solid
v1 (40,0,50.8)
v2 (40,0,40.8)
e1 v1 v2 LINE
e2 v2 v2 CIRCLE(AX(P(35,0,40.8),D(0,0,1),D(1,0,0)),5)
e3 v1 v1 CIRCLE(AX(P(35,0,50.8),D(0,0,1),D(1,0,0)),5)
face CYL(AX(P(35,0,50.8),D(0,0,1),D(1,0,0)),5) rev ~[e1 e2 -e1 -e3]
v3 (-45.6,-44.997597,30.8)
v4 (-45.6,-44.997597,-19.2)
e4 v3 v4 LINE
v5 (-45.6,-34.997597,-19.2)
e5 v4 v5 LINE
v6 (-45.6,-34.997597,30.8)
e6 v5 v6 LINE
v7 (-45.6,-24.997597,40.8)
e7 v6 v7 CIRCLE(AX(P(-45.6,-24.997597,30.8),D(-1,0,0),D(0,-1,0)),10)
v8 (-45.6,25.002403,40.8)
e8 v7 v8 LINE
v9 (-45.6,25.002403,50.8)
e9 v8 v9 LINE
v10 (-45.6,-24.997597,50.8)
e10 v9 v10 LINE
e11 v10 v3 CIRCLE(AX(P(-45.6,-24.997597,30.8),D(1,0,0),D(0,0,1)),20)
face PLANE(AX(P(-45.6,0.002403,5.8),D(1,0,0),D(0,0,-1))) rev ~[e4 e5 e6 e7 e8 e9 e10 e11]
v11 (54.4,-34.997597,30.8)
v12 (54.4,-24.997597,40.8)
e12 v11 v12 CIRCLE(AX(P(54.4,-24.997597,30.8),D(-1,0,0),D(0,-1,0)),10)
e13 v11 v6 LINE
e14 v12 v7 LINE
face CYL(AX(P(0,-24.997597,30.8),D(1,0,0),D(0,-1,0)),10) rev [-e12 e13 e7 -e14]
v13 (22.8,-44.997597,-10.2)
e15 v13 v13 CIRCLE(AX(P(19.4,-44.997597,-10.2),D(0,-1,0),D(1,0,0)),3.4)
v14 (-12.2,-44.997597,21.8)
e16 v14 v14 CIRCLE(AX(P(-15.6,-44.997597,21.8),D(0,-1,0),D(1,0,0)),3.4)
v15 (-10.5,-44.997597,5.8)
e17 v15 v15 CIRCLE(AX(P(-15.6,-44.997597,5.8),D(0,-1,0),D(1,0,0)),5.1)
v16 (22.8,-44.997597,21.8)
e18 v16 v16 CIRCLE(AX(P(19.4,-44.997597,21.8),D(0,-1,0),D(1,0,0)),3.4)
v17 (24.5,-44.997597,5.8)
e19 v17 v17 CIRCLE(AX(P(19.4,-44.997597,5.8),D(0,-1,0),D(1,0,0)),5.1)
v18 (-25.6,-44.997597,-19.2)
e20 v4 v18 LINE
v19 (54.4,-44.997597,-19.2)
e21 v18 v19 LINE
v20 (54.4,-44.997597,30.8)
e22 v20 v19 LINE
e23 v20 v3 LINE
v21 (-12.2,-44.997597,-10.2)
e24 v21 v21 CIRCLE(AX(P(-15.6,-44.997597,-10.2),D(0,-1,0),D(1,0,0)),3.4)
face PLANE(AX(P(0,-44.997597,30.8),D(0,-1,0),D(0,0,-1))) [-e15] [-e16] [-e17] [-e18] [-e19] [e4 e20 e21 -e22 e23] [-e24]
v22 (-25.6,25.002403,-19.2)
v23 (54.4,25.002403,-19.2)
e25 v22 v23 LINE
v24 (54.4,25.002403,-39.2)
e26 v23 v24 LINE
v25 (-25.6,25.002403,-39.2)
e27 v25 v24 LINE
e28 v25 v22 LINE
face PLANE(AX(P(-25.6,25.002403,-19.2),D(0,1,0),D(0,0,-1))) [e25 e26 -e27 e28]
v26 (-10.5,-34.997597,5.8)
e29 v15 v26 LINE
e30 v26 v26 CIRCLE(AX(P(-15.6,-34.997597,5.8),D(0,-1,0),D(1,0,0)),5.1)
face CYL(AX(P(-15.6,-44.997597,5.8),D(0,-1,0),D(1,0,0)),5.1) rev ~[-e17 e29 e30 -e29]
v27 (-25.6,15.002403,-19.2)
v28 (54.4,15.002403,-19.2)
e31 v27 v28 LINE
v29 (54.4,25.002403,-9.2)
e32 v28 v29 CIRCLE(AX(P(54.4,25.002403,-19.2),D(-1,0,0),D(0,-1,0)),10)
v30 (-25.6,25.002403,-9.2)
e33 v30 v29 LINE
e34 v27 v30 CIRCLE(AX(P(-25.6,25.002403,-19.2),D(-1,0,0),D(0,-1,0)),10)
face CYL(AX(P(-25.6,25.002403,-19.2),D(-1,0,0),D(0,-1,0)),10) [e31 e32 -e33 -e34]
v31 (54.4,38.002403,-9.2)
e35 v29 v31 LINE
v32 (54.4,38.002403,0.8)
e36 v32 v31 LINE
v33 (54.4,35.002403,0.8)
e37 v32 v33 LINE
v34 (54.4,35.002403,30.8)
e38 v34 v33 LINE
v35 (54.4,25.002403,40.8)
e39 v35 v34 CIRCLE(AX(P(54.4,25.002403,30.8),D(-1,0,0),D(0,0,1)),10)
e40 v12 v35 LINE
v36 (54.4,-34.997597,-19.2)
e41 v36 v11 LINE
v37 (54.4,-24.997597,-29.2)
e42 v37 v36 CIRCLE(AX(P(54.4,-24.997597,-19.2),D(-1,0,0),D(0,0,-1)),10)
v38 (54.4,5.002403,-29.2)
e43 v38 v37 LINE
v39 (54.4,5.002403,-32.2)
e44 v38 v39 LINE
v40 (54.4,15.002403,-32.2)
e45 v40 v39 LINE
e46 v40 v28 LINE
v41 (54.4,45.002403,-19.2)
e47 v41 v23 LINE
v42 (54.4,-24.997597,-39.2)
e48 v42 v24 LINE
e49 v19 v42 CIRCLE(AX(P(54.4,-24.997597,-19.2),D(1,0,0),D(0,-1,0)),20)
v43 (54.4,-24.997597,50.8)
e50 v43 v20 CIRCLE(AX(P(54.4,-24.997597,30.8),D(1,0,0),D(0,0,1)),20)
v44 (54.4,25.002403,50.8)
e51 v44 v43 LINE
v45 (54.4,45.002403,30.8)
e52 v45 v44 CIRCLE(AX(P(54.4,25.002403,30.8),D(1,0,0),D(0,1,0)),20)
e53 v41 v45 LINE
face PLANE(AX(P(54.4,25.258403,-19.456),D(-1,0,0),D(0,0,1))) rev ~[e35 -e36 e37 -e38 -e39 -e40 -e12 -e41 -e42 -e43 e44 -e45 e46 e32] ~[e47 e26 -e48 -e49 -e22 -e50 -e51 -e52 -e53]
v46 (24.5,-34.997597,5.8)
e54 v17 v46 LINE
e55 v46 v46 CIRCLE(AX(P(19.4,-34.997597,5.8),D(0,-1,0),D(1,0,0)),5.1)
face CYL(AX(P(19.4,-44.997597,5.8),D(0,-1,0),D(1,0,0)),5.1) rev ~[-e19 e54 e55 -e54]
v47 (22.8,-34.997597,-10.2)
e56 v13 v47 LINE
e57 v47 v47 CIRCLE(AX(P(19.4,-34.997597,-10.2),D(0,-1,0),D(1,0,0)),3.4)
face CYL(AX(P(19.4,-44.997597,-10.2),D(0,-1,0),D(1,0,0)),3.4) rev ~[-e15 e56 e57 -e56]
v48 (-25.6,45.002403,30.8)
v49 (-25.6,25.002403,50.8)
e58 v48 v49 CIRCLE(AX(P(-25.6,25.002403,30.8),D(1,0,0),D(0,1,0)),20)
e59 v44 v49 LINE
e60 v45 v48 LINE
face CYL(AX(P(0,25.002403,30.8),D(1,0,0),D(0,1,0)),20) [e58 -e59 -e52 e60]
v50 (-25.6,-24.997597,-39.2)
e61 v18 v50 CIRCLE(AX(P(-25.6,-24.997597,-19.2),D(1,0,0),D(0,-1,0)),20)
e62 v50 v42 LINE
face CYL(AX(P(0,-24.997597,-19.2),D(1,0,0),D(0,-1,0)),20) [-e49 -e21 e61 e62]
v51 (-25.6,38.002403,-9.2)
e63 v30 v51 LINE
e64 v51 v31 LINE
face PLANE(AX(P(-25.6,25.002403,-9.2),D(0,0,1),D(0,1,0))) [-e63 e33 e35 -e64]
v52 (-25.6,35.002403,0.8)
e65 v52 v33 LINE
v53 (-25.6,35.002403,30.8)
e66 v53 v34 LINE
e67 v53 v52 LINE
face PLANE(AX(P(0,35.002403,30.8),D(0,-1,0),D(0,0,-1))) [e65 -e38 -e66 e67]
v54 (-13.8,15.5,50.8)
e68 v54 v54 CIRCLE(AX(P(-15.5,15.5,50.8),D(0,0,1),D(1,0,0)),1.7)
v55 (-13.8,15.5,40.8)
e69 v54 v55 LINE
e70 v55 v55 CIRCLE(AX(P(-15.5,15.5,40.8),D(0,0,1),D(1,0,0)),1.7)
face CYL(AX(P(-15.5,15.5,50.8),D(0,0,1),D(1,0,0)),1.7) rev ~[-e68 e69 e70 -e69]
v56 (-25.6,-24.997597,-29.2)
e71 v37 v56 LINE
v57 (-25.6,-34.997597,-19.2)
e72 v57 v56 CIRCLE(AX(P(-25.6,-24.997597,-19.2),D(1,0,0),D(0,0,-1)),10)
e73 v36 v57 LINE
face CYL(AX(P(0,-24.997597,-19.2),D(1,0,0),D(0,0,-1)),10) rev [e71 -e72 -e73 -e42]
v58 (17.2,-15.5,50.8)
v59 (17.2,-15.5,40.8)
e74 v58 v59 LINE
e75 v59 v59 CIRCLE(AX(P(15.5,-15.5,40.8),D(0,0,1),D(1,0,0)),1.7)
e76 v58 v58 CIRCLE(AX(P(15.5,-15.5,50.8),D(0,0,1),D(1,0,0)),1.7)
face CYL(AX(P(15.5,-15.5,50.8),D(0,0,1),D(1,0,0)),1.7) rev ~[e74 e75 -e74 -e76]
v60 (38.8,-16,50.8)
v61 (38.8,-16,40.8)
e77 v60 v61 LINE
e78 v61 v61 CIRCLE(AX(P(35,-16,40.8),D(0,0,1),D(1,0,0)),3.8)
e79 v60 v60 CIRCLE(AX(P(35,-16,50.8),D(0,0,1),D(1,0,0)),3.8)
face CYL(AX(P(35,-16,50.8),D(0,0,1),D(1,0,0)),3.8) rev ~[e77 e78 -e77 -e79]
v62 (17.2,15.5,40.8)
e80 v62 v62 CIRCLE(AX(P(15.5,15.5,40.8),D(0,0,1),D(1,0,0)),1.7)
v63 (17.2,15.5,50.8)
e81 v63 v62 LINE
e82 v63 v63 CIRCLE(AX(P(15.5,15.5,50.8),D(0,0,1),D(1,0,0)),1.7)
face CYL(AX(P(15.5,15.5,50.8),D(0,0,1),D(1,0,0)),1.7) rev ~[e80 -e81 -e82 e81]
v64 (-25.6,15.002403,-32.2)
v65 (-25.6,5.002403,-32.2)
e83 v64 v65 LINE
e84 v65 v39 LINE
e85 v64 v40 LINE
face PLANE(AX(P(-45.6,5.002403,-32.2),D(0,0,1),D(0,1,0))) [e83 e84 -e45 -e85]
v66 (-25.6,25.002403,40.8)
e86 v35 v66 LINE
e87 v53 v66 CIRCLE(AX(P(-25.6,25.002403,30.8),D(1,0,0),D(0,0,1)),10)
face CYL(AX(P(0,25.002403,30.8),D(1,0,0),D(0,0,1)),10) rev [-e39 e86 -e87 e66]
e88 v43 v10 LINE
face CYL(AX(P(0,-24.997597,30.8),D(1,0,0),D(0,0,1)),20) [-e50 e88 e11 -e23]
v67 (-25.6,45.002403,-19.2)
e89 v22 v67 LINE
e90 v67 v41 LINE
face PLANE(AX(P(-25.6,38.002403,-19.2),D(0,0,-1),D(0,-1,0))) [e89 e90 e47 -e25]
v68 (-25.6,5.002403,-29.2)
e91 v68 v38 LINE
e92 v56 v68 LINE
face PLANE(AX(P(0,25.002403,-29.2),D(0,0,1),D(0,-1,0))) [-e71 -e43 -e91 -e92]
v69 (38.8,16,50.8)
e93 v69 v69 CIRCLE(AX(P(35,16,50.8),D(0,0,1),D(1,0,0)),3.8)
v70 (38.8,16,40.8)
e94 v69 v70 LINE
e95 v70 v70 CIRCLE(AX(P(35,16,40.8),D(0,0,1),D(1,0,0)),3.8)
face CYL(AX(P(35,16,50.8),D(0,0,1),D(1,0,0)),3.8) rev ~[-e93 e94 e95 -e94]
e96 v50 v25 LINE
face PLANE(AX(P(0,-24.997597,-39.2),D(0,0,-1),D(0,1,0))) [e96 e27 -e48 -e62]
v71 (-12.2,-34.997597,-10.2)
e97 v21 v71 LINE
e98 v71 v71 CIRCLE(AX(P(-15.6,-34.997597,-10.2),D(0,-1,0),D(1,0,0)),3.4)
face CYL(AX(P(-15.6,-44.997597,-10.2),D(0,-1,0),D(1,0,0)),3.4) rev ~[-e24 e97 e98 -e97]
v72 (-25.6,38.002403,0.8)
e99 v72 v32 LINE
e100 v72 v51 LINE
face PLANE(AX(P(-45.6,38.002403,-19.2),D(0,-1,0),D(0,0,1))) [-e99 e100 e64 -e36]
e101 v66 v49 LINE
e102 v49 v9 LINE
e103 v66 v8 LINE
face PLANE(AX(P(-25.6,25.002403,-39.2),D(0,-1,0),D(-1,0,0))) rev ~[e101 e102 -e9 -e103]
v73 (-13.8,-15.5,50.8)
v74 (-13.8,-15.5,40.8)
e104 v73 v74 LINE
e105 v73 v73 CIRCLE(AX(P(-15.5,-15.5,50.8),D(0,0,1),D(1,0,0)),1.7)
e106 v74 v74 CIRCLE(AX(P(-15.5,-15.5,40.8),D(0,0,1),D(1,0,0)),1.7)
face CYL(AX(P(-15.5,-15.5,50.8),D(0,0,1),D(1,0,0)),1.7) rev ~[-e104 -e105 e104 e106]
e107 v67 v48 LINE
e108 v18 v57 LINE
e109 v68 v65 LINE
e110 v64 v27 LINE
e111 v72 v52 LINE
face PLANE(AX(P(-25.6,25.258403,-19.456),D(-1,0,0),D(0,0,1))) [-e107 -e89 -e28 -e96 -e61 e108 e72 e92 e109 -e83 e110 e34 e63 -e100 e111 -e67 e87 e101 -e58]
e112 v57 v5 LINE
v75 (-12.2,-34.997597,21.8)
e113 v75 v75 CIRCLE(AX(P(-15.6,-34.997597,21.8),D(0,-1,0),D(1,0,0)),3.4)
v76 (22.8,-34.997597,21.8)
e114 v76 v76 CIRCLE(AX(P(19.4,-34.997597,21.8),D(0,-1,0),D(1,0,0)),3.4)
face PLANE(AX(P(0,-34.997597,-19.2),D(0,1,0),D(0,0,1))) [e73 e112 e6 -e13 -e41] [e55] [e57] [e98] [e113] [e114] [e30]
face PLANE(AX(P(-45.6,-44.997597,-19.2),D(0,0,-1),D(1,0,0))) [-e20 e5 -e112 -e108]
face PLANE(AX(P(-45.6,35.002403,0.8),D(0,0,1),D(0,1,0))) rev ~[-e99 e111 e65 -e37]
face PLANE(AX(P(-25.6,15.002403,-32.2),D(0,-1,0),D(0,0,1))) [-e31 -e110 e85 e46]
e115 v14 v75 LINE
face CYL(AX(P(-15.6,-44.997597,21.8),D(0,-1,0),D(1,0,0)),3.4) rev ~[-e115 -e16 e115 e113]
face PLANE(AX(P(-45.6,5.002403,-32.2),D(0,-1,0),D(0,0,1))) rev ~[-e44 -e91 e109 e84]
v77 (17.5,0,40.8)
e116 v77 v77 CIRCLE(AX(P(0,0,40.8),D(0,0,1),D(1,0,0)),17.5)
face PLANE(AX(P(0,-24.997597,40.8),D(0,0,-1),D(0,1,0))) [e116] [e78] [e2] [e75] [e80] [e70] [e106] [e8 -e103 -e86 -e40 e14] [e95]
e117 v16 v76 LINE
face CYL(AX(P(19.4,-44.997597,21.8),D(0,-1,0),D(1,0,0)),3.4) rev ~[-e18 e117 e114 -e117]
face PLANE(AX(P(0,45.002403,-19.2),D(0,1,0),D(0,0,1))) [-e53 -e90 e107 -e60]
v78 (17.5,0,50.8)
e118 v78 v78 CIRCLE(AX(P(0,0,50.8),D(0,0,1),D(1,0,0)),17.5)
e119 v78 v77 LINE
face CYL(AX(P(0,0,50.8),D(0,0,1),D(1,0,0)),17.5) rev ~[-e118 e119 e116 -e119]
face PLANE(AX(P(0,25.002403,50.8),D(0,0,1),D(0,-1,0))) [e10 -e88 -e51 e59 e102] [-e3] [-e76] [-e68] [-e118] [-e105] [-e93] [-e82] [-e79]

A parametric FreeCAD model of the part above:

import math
import FreeCAD as App
import Part
import Sketcher

V = App.Vector


def add_polygon(sketch, points):
    """Adds a closed chain of lines whose ends are joined by coincident constraints."""
    first, n = sketch.GeometryCount, len(points)
    for a, b in zip(points, points[1:] + points[:1]):
        sketch.addGeometry(Part.LineSegment(App.Vector(*a, 0), App.Vector(*b, 0)), False)
    for i in range(n):
        sketch.addConstraint(Sketcher.Constraint("Coincident", first + i, 2, first + (i + 1) % n, 1))

doc = App.newDocument("Part")
params = doc.addObject("Spreadsheet::Sheet", "Params")
for row, (alias, value) in enumerate([
    ("sketch1_radius", "20 mm"),
    ("sketch1_radius2", "10 mm"),
    ("sketch1_width", "50 mm"),
    ("pad1_length", "54.4 mm"),
    ("pad1_length2", "45.6 mm"),
    ("sketch2_diameter", "7.6 mm"),
    ("sketch3_diameter", "10 mm"),
    ("sketch4_diameter", "7.6 mm"),
    ("sketch5_diameter", "35 mm"),
    ("sketch6_diameter", "3.4 mm"),
    ("sketch7_diameter", "3.4 mm"),
    ("sketch8_diameter", "3.4 mm"),
    ("sketch9_diameter", "3.4 mm"),
    ("sketch10_diameter", "10.2 mm"),
    ("sketch11_diameter", "10.2 mm"),
    ("sketch12_diameter", "6.8 mm"),
    ("sketch13_diameter", "6.8 mm"),
    ("sketch14_diameter", "6.8 mm"),
    ("sketch15_diameter", "6.8 mm"),
    ("sketch16_width", "20 mm"),
    ("sketch17_width", "20 mm"),
    ("sketch18_width", "10 mm"),
    ("sketch18_width2", "3 mm"),
    ("sketch18_width3", "7 mm"),
    ("sketch19_radius", "10 mm"),
    ("sketch19_width", "13 mm"),
    ("pad2_length", "80 mm"),
], start=1):
    params.set(f"A{row}", alias)
    params.set(f"B{row}", "=" + value)
    params.setAlias(f"B{row}", alias)

body = doc.addObject("PartDesign::Body", "Body")

sketch1 = body.newObject("Sketcher::SketchObject", "Sketch")
sketch1.AttachmentSupport = (doc.getObject("YZ_Plane"), [""])
sketch1.MapMode = "FlatFace"
sketch1.addGeometry(Part.LineSegment(V(-45, 31, 0), V(-45, -19, 0)), False)
sketch1.addGeometry(Part.ArcOfCircle(Part.Circle(V(-25, -19, 0), V(0, 0, 1), 20), math.radians(180), math.radians(270)), False)
sketch1.addGeometry(Part.LineSegment(V(-25, -39, 0), V(25, -39, 0)), False)
sketch1.addGeometry(Part.ArcOfCircle(Part.Circle(V(25, -19, 0), V(0, 0, 1), 20), math.radians(-90), math.radians(0)), False)
sketch1.addGeometry(Part.LineSegment(V(45, -19, 0), V(45, 31, 0)), False)
sketch1.addGeometry(Part.ArcOfCircle(Part.Circle(V(25, 31, 0), V(0, 0, 1), 20), math.radians(0), math.radians(90)), False)
sketch1.addGeometry(Part.LineSegment(V(25, 51, 0), V(-25, 51, 0)), False)
sketch1.addGeometry(Part.ArcOfCircle(Part.Circle(V(-25, 31, 0), V(0, 0, 1), 20), math.radians(90), math.radians(180)), False)
sketch1.addGeometry(Part.ArcOfCircle(Part.Circle(V(25, 31, 0), V(0, 0, 1), 10), math.radians(0), math.radians(90)), False)
sketch1.addGeometry(Part.LineSegment(V(35, 31, 0), V(35, -19, 0)), False)
sketch1.addGeometry(Part.ArcOfCircle(Part.Circle(V(25, -19, 0), V(0, 0, 1), 10), math.radians(-90), math.radians(0)), False)
sketch1.addGeometry(Part.LineSegment(V(25, -29, 0), V(-25, -29, 0)), False)
sketch1.addGeometry(Part.ArcOfCircle(Part.Circle(V(-25, -19, 0), V(0, 0, 1), 10), math.radians(180), math.radians(270)), False)
sketch1.addGeometry(Part.LineSegment(V(-35, -19, 0), V(-35, 31, 0)), False)
sketch1.addGeometry(Part.ArcOfCircle(Part.Circle(V(-25, 31, 0), V(0, 0, 1), 10), math.radians(90), math.radians(180)), False)
sketch1.addGeometry(Part.LineSegment(V(-25, 41, 0), V(25, 41, 0)), False)
sketch1.addConstraint(Sketcher.Constraint("Tangent", 0, 2, 1, 1))
sketch1.addConstraint(Sketcher.Constraint("Tangent", 1, 2, 2, 1))
sketch1.addConstraint(Sketcher.Constraint("Tangent", 2, 2, 3, 1))
sketch1.addConstraint(Sketcher.Constraint("Tangent", 3, 2, 4, 1))
sketch1.addConstraint(Sketcher.Constraint("Tangent", 4, 2, 5, 1))
sketch1.addConstraint(Sketcher.Constraint("Tangent", 5, 2, 6, 1))
sketch1.addConstraint(Sketcher.Constraint("Tangent", 6, 2, 7, 1))
sketch1.addConstraint(Sketcher.Constraint("Tangent", 7, 2, 0, 1))
sketch1.addConstraint(Sketcher.Constraint("Tangent", 8, 1, 9, 1))
sketch1.addConstraint(Sketcher.Constraint("Tangent", 9, 2, 10, 2))
sketch1.addConstraint(Sketcher.Constraint("Tangent", 10, 1, 11, 1))
sketch1.addConstraint(Sketcher.Constraint("Tangent", 11, 2, 12, 2))
sketch1.addConstraint(Sketcher.Constraint("Tangent", 12, 1, 13, 1))
sketch1.addConstraint(Sketcher.Constraint("Tangent", 13, 2, 14, 2))
sketch1.addConstraint(Sketcher.Constraint("Tangent", 14, 1, 15, 1))
sketch1.addConstraint(Sketcher.Constraint("Tangent", 15, 2, 8, 2))
sketch1.addConstraint(Sketcher.Constraint("Vertical", 0))
sketch1.addConstraint(Sketcher.Constraint("Horizontal", 2))
sketch1.addConstraint(Sketcher.Constraint("Vertical", 4))
sketch1.addConstraint(Sketcher.Constraint("Horizontal", 6))
sketch1.addConstraint(Sketcher.Constraint("Vertical", 9))
sketch1.addConstraint(Sketcher.Constraint("Horizontal", 11))
sketch1.addConstraint(Sketcher.Constraint("Vertical", 13))
sketch1.addConstraint(Sketcher.Constraint("Horizontal", 15))
sketch1.addConstraint(Sketcher.Constraint("Coincident", 8, 3, 5, 3))
sketch1.addConstraint(Sketcher.Constraint("Coincident", 10, 3, 3, 3))
sketch1.addConstraint(Sketcher.Constraint("Coincident", 12, 3, 1, 3))
sketch1.addConstraint(Sketcher.Constraint("Equal", 1, 3))
sketch1.addConstraint(Sketcher.Constraint("Equal", 3, 5))
sketch1.addConstraint(Sketcher.Constraint("Equal", 5, 7))
sketch1.addConstraint(Sketcher.Constraint("Equal", 12, 14))
sketch1.addConstraint(Sketcher.Constraint("Equal", 15, 0))
sketch1.addConstraint(Sketcher.Constraint("Radius", 1, 20.0))
sketch1.addConstraint(Sketcher.Constraint("Radius", 8, 10.0))
sketch1.addConstraint(Sketcher.Constraint("DistanceX", 2, 1, 2, 2, 50.0))
sketch1.addConstraint(Sketcher.Constraint("DistanceY", 1, 3, -1, 1, 19.2))
sketch1.addConstraint(Sketcher.Constraint("DistanceX", 1, 3, -1, 1, 24.997597))
sketch1.setExpression("Constraints[32]", "Params.sketch1_radius")
sketch1.setExpression("Constraints[33]", "Params.sketch1_radius2")
sketch1.setExpression("Constraints[34]", "Params.sketch1_width")
pad1 = body.newObject("PartDesign::Pad", "Pad")
pad1.Profile = sketch1
pad1.Type = "TwoLengths"
pad1.setExpression("Length", "Params.pad1_length")
pad1.setExpression("Length2", "Params.pad1_length2")

sketch2 = body.newObject("Sketcher::SketchObject", "Sketch001")
sketch2.AttachmentSupport = (doc.getObject("XY_Plane"), [""])
sketch2.MapMode = "FlatFace"
sketch2.AttachmentOffset = App.Placement(V(0, 0, 50.8), App.Rotation())
sketch2.addGeometry(Part.Circle(V(35, -16, 0), V(0, 0, 1), 3.8), False)
sketch2.addConstraint(Sketcher.Constraint("Diameter", 0, 7.6))
sketch2.addConstraint(Sketcher.Constraint("DistanceX", -1, 1, 0, 3, 35.0))
sketch2.addConstraint(Sketcher.Constraint("DistanceY", 0, 3, -1, 1, 16.0))
sketch2.setExpression("Constraints[0]", "Params.sketch2_diameter")
pocket1 = body.newObject("PartDesign::Pocket", "Pocket")
pocket1.Profile = sketch2
pocket1.Type = "UpToFirst"

sketch3 = body.newObject("Sketcher::SketchObject", "Sketch002")
sketch3.AttachmentSupport = (doc.getObject("XY_Plane"), [""])
sketch3.MapMode = "FlatFace"
sketch3.AttachmentOffset = App.Placement(V(0, 0, 50.8), App.Rotation())
sketch3.addGeometry(Part.Circle(V(35, 0, 0), V(0, 0, 1), 5), False)
sketch3.addConstraint(Sketcher.Constraint("PointOnObject", 0, 3, -1))
sketch3.addConstraint(Sketcher.Constraint("Diameter", 0, 10.0))
sketch3.addConstraint(Sketcher.Constraint("DistanceX", -1, 1, 0, 3, 35.0))
sketch3.setExpression("Constraints[1]", "Params.sketch3_diameter")
pocket2 = body.newObject("PartDesign::Pocket", "Pocket001")
pocket2.Profile = sketch3
pocket2.Type = "UpToFirst"

sketch4 = body.newObject("Sketcher::SketchObject", "Sketch003")
sketch4.AttachmentSupport = (doc.getObject("XY_Plane"), [""])
sketch4.MapMode = "FlatFace"
sketch4.AttachmentOffset = App.Placement(V(0, 0, 50.8), App.Rotation())
sketch4.addGeometry(Part.Circle(V(35, 16, 0), V(0, 0, 1), 3.8), False)
sketch4.addConstraint(Sketcher.Constraint("Diameter", 0, 7.6))
sketch4.addConstraint(Sketcher.Constraint("DistanceX", -1, 1, 0, 3, 35.0))
sketch4.addConstraint(Sketcher.Constraint("DistanceY", -1, 1, 0, 3, 16.0))
sketch4.setExpression("Constraints[0]", "Params.sketch4_diameter")
pocket3 = body.newObject("PartDesign::Pocket", "Pocket002")
pocket3.Profile = sketch4
pocket3.Type = "UpToFirst"

sketch5 = body.newObject("Sketcher::SketchObject", "Sketch004")
sketch5.AttachmentSupport = (doc.getObject("XY_Plane"), [""])
sketch5.MapMode = "FlatFace"
sketch5.AttachmentOffset = App.Placement(V(0, 0, 50.8), App.Rotation())
sketch5.addGeometry(Part.Circle(V(0, 0, 0), V(0, 0, 1), 18), False)
sketch5.addConstraint(Sketcher.Constraint("Coincident", 0, 3, -1, 1))
sketch5.addConstraint(Sketcher.Constraint("Diameter", 0, 35.0))
sketch5.setExpression("Constraints[1]", "Params.sketch5_diameter")
pocket4 = body.newObject("PartDesign::Pocket", "Pocket003")
pocket4.Profile = sketch5
pocket4.Type = "UpToFirst"

sketch6 = body.newObject("Sketcher::SketchObject", "Sketch005")
sketch6.AttachmentSupport = (doc.getObject("XY_Plane"), [""])
sketch6.MapMode = "FlatFace"
sketch6.AttachmentOffset = App.Placement(V(0, 0, 50.8), App.Rotation())
sketch6.addGeometry(Part.Circle(V(15.5, 15.5, 0), V(0, 0, 1), 1.7), False)
sketch6.addConstraint(Sketcher.Constraint("Diameter", 0, 3.4))
sketch6.addConstraint(Sketcher.Constraint("DistanceX", -1, 1, 0, 3, 15.5))
sketch6.addConstraint(Sketcher.Constraint("DistanceY", -1, 1, 0, 3, 15.5))
sketch6.setExpression("Constraints[0]", "Params.sketch6_diameter")
pocket5 = body.newObject("PartDesign::Pocket", "Pocket004")
pocket5.Profile = sketch6
pocket5.Type = "UpToFirst"

sketch7 = body.newObject("Sketcher::SketchObject", "Sketch006")
sketch7.AttachmentSupport = (doc.getObject("XY_Plane"), [""])
sketch7.MapMode = "FlatFace"
sketch7.AttachmentOffset = App.Placement(V(0, 0, 50.8), App.Rotation())
sketch7.addGeometry(Part.Circle(V(15.5, -15.5, 0), V(0, 0, 1), 1.7), False)
sketch7.addConstraint(Sketcher.Constraint("Diameter", 0, 3.4))
sketch7.addConstraint(Sketcher.Constraint("DistanceX", -1, 1, 0, 3, 15.5))
sketch7.addConstraint(Sketcher.Constraint("DistanceY", 0, 3, -1, 1, 15.5))
sketch7.setExpression("Constraints[0]", "Params.sketch7_diameter")
pocket6 = body.newObject("PartDesign::Pocket", "Pocket005")
pocket6.Profile = sketch7
pocket6.Type = "UpToFirst"

sketch8 = body.newObject("Sketcher::SketchObject", "Sketch007")
sketch8.AttachmentSupport = (doc.getObject("XY_Plane"), [""])
sketch8.MapMode = "FlatFace"
sketch8.AttachmentOffset = App.Placement(V(0, 0, 50.8), App.Rotation())
sketch8.addGeometry(Part.Circle(V(-15.5, 15.5, 0), V(0, 0, 1), 1.7), False)
sketch8.addConstraint(Sketcher.Constraint("Diameter", 0, 3.4))
sketch8.addConstraint(Sketcher.Constraint("DistanceX", 0, 3, -1, 1, 15.5))
sketch8.addConstraint(Sketcher.Constraint("DistanceY", -1, 1, 0, 3, 15.5))
sketch8.setExpression("Constraints[0]", "Params.sketch8_diameter")
pocket7 = body.newObject("PartDesign::Pocket", "Pocket006")
pocket7.Profile = sketch8
pocket7.Type = "UpToFirst"

sketch9 = body.newObject("Sketcher::SketchObject", "Sketch008")
sketch9.AttachmentSupport = (doc.getObject("XY_Plane"), [""])
sketch9.MapMode = "FlatFace"
sketch9.AttachmentOffset = App.Placement(V(0, 0, 50.8), App.Rotation())
sketch9.addGeometry(Part.Circle(V(-15.5, -15.5, 0), V(0, 0, 1), 1.7), False)
sketch9.addConstraint(Sketcher.Constraint("Diameter", 0, 3.4))
sketch9.addConstraint(Sketcher.Constraint("DistanceX", 0, 3, -1, 1, 15.5))
sketch9.addConstraint(Sketcher.Constraint("DistanceY", 0, 3, -1, 1, 15.5))
sketch9.setExpression("Constraints[0]", "Params.sketch9_diameter")
pocket8 = body.newObject("PartDesign::Pocket", "Pocket007")
pocket8.Profile = sketch9
pocket8.Type = "UpToFirst"

sketch10 = body.newObject("Sketcher::SketchObject", "Sketch009")
sketch10.AttachmentSupport = (doc.getObject("XZ_Plane"), [""])
sketch10.MapMode = "FlatFace"
sketch10.AttachmentOffset = App.Placement(V(0, 0, 44.997597), App.Rotation())
sketch10.addGeometry(Part.Circle(V(-16, 6, 0), V(0, 0, 1), 5), False)
sketch10.addConstraint(Sketcher.Constraint("Diameter", 0, 10.2))
sketch10.addConstraint(Sketcher.Constraint("DistanceX", 0, 3, -1, 1, 15.6))
sketch10.addConstraint(Sketcher.Constraint("DistanceY", -1, 1, 0, 3, 5.8))
sketch10.setExpression("Constraints[0]", "Params.sketch10_diameter")
pocket9 = body.newObject("PartDesign::Pocket", "Pocket008")
pocket9.Profile = sketch10
pocket9.Type = "UpToFirst"

sketch11 = body.newObject("Sketcher::SketchObject", "Sketch010")
sketch11.AttachmentSupport = (doc.getObject("XZ_Plane"), [""])
sketch11.MapMode = "FlatFace"
sketch11.AttachmentOffset = App.Placement(V(0, 0, 44.997597), App.Rotation())
sketch11.addGeometry(Part.Circle(V(19, 6, 0), V(0, 0, 1), 5), False)
sketch11.addConstraint(Sketcher.Constraint("Diameter", 0, 10.2))
sketch11.addConstraint(Sketcher.Constraint("DistanceX", -1, 1, 0, 3, 19.4))
sketch11.addConstraint(Sketcher.Constraint("DistanceY", -1, 1, 0, 3, 5.8))
sketch11.setExpression("Constraints[0]", "Params.sketch11_diameter")
pocket10 = body.newObject("PartDesign::Pocket", "Pocket009")
pocket10.Profile = sketch11
pocket10.Type = "UpToFirst"

sketch12 = body.newObject("Sketcher::SketchObject", "Sketch011")
sketch12.AttachmentSupport = (doc.getObject("XZ_Plane"), [""])
sketch12.MapMode = "FlatFace"
sketch12.AttachmentOffset = App.Placement(V(0, 0, 44.997597), App.Rotation())
sketch12.addGeometry(Part.Circle(V(-15.6, 21.8, 0), V(0, 0, 1), 3.4), False)
sketch12.addConstraint(Sketcher.Constraint("Diameter", 0, 6.8))
sketch12.addConstraint(Sketcher.Constraint("DistanceX", 0, 3, -1, 1, 15.6))
sketch12.addConstraint(Sketcher.Constraint("DistanceY", -1, 1, 0, 3, 21.8))
sketch12.setExpression("Constraints[0]", "Params.sketch12_diameter")
pocket11 = body.newObject("PartDesign::Pocket", "Pocket010")
pocket11.Profile = sketch12
pocket11.Type = "UpToFirst"

sketch13 = body.newObject("Sketcher::SketchObject", "Sketch012")
sketch13.AttachmentSupport = (doc.getObject("XZ_Plane"), [""])
sketch13.MapMode = "FlatFace"
sketch13.AttachmentOffset = App.Placement(V(0, 0, 44.997597), App.Rotation())
sketch13.addGeometry(Part.Circle(V(-15.6, -10.2, 0), V(0, 0, 1), 3.4), False)
sketch13.addConstraint(Sketcher.Constraint("Diameter", 0, 6.8))
sketch13.addConstraint(Sketcher.Constraint("DistanceX", 0, 3, -1, 1, 15.6))
sketch13.addConstraint(Sketcher.Constraint("DistanceY", 0, 3, -1, 1, 10.2))
sketch13.setExpression("Constraints[0]", "Params.sketch13_diameter")
pocket12 = body.newObject("PartDesign::Pocket", "Pocket011")
pocket12.Profile = sketch13
pocket12.Type = "UpToFirst"

sketch14 = body.newObject("Sketcher::SketchObject", "Sketch013")
sketch14.AttachmentSupport = (doc.getObject("XZ_Plane"), [""])
sketch14.MapMode = "FlatFace"
sketch14.AttachmentOffset = App.Placement(V(0, 0, 44.997597), App.Rotation())
sketch14.addGeometry(Part.Circle(V(19.4, 21.8, 0), V(0, 0, 1), 3.4), False)
sketch14.addConstraint(Sketcher.Constraint("Diameter", 0, 6.8))
sketch14.addConstraint(Sketcher.Constraint("DistanceX", -1, 1, 0, 3, 19.4))
sketch14.addConstraint(Sketcher.Constraint("DistanceY", -1, 1, 0, 3, 21.8))
sketch14.setExpression("Constraints[0]", "Params.sketch14_diameter")
pocket13 = body.newObject("PartDesign::Pocket", "Pocket012")
pocket13.Profile = sketch14
pocket13.Type = "UpToFirst"

sketch15 = body.newObject("Sketcher::SketchObject", "Sketch014")
sketch15.AttachmentSupport = (doc.getObject("XZ_Plane"), [""])
sketch15.MapMode = "FlatFace"
sketch15.AttachmentOffset = App.Placement(V(0, 0, 44.997597), App.Rotation())
sketch15.addGeometry(Part.Circle(V(19.4, -10.2, 0), V(0, 0, 1), 3.4), False)
sketch15.addConstraint(Sketcher.Constraint("Diameter", 0, 6.8))
sketch15.addConstraint(Sketcher.Constraint("DistanceX", -1, 1, 0, 3, 19.4))
sketch15.addConstraint(Sketcher.Constraint("DistanceY", 0, 3, -1, 1, 10.2))
sketch15.setExpression("Constraints[0]", "Params.sketch15_diameter")
pocket14 = body.newObject("PartDesign::Pocket", "Pocket013")
pocket14.Profile = sketch15
pocket14.Type = "UpToFirst"

sketch16 = body.newObject("Sketcher::SketchObject", "Sketch015")
sketch16.AttachmentSupport = (doc.getObject("XY_Plane"), [""])
sketch16.MapMode = "FlatFace"
sketch16.AttachmentOffset = App.Placement(V(0, 0, -39.2), App.Rotation())
add_polygon(sketch16, [(-26, 45), (-26, 25), (-46, 25), (-46, 45)])
sketch16.addConstraint(Sketcher.Constraint("Vertical", 0))
sketch16.addConstraint(Sketcher.Constraint("Horizontal", 1))
sketch16.addConstraint(Sketcher.Constraint("Vertical", 2))
sketch16.addConstraint(Sketcher.Constraint("Horizontal", 3))
sketch16.addConstraint(Sketcher.Constraint("Equal", 3, 0))
sketch16.addConstraint(Sketcher.Constraint("DistanceX", 1, 2, 1, 1, 20.0))
sketch16.addConstraint(Sketcher.Constraint("DistanceX", 0, 2, -1, 1, 25.6))
sketch16.addConstraint(Sketcher.Constraint("DistanceY", -1, 1, 0, 2, 25.002403))
sketch16.setExpression("Constraints[9]", "Params.sketch16_width")
pocket15 = body.newObject("PartDesign::Pocket", "Pocket014")
pocket15.Profile = sketch16
pocket15.Type = "ThroughAll"
pocket15.Reversed = True

sketch17 = body.newObject("Sketcher::SketchObject", "Sketch016")
sketch17.AttachmentSupport = (doc.getObject("XZ_Plane"), [""])
sketch17.MapMode = "FlatFace"
sketch17.AttachmentOffset = App.Placement(V(0, 0, 44.997597), App.Rotation())
add_polygon(sketch17, [(-46, -19), (-46, -39), (-26, -39), (-26, -19)])
sketch17.addConstraint(Sketcher.Constraint("Vertical", 0))
sketch17.addConstraint(Sketcher.Constraint("Horizontal", 1))
sketch17.addConstraint(Sketcher.Constraint("Vertical", 2))
sketch17.addConstraint(Sketcher.Constraint("Horizontal", 3))
sketch17.addConstraint(Sketcher.Constraint("Equal", 3, 0))
sketch17.addConstraint(Sketcher.Constraint("DistanceX", 1, 1, 1, 2, 20.0))
sketch17.addConstraint(Sketcher.Constraint("DistanceX", 0, 2, -1, 1, 45.6))
sketch17.addConstraint(Sketcher.Constraint("DistanceY", 0, 2, -1, 1, 39.2))
sketch17.setExpression("Constraints[9]", "Params.sketch17_width")
pocket16 = body.newObject("PartDesign::Pocket", "Pocket015")
pocket16.Profile = sketch17
pocket16.Type = "ThroughAll"

sketch18 = body.newObject("Sketcher::SketchObject", "Sketch017")
sketch18.AttachmentSupport = (doc.getObject("YZ_Plane"), [""])
sketch18.MapMode = "FlatFace"
sketch18.AttachmentOffset = App.Placement(V(0, 0, -45.6), App.Rotation())
add_polygon(sketch18, [(25, -19.2), (35, -19.2), (35, 0.8), (38, 0.8), (38, -19.2), (45, -19.2), (45, -39.2), (25, -39.2), (25, -32.2), (5, -32.2), (5, -29.2), (25, -29.2)])
sketch18.addConstraint(Sketcher.Constraint("Horizontal", 0))
sketch18.addConstraint(Sketcher.Constraint("Vertical", 1))
sketch18.addConstraint(Sketcher.Constraint("Horizontal", 2))
sketch18.addConstraint(Sketcher.Constraint("Vertical", 3))
sketch18.addConstraint(Sketcher.Constraint("Horizontal", 4))
sketch18.addConstraint(Sketcher.Constraint("Vertical", 5))
sketch18.addConstraint(Sketcher.Constraint("Horizontal", 6))
sketch18.addConstraint(Sketcher.Constraint("Vertical", 7))
sketch18.addConstraint(Sketcher.Constraint("Horizontal", 8))
sketch18.addConstraint(Sketcher.Constraint("Vertical", 9))
sketch18.addConstraint(Sketcher.Constraint("Horizontal", 10))
sketch18.addConstraint(Sketcher.Constraint("Vertical", 11))
sketch18.addConstraint(Sketcher.Constraint("Horizontal", 0, 2, 3, 2))
sketch18.addConstraint(Sketcher.Constraint("Vertical", 7, 2, 10, 2))
sketch18.addConstraint(Sketcher.Constraint("Equal", 6, 8))
sketch18.addConstraint(Sketcher.Constraint("Equal", 10, 1))
sketch18.addConstraint(Sketcher.Constraint("Equal", 3, 5))
sketch18.addConstraint(Sketcher.Constraint("Equal", 4, 7))
sketch18.addConstraint(Sketcher.Constraint("Equal", 2, 9))
sketch18.addConstraint(Sketcher.Constraint("DistanceX", 0, 1, 0, 2, 10.0))
sketch18.addConstraint(Sketcher.Constraint("DistanceX", 2, 1, 2, 2, 3.0))
sketch18.addConstraint(Sketcher.Constraint("DistanceX", 4, 1, 4, 2, 7.0))
sketch18.addConstraint(Sketcher.Constraint("DistanceY", 0, 2, -1, 1, 19.2))
sketch18.addConstraint(Sketcher.Constraint("DistanceX", -1, 1, 0, 2, 35.002403))
sketch18.setExpression("Constraints[31]", "Params.sketch18_width")
sketch18.setExpression("Constraints[32]", "Params.sketch18_width2")
sketch18.setExpression("Constraints[33]", "Params.sketch18_width3")
pocket17 = body.newObject("PartDesign::Pocket", "Pocket016")
pocket17.Profile = sketch18
pocket17.Type = "ThroughAll"
pocket17.Reversed = True

sketch19 = body.newObject("Sketcher::SketchObject", "Sketch018")
sketch19.AttachmentSupport = (doc.getObject("YZ_Plane"), [""])
sketch19.MapMode = "FlatFace"
sketch19.AttachmentOffset = App.Placement(V(0, 0, -25.6), App.Rotation())
sketch19.addGeometry(Part.LineSegment(V(38, -19, 0), V(25, -19, 0)), False)
sketch19.addGeometry(Part.LineSegment(V(25, -19, 0), V(25, -32, 0)), False)
sketch19.addGeometry(Part.LineSegment(V(25, -32, 0), V(15, -32, 0)), False)
sketch19.addGeometry(Part.LineSegment(V(15, -32, 0), V(15, -19, 0)), False)
sketch19.addGeometry(Part.ArcOfCircle(Part.Circle(V(25, -19, 0), V(0, 0, 1), 10), math.radians(90), math.radians(180)), False)
sketch19.addGeometry(Part.LineSegment(V(25, -9, 0), V(38, -9, 0)), False)
sketch19.addGeometry(Part.LineSegment(V(38, -9, 0), V(38, -19, 0)), False)
sketch19.addConstraint(Sketcher.Constraint("Coincident", 0, 2, 1, 1))
sketch19.addConstraint(Sketcher.Constraint("Coincident", 1, 2, 2, 1))
sketch19.addConstraint(Sketcher.Constraint("Coincident", 2, 2, 3, 1))
sketch19.addConstraint(Sketcher.Constraint("Tangent", 3, 2, 4, 2))
sketch19.addConstraint(Sketcher.Constraint("Tangent", 4, 1, 5, 1))
sketch19.addConstraint(Sketcher.Constraint("Coincident", 5, 2, 6, 1))
sketch19.addConstraint(Sketcher.Constraint("Coincident", 6, 2, 0, 1))
sketch19.addConstraint(Sketcher.Constraint("Horizontal", 0))
sketch19.addConstraint(Sketcher.Constraint("Vertical", 1))
sketch19.addConstraint(Sketcher.Constraint("Horizontal", 2))
sketch19.addConstraint(Sketcher.Constraint("Vertical", 3))
sketch19.addConstraint(Sketcher.Constraint("Horizontal", 5))
sketch19.addConstraint(Sketcher.Constraint("Vertical", 6))
sketch19.addConstraint(Sketcher.Constraint("Coincident", 0, 2, 4, 3))
sketch19.addConstraint(Sketcher.Constraint("Equal", 5, 1))
sketch19.addConstraint(Sketcher.Constraint("Radius", 4, 10.0))
sketch19.addConstraint(Sketcher.Constraint("DistanceX", 0, 2, 0, 1, 13.0))
sketch19.addConstraint(Sketcher.Constraint("DistanceY", 4, 3, -1, 1, 19.2))
sketch19.addConstraint(Sketcher.Constraint("DistanceX", -1, 1, 4, 3, 25.002403))
sketch19.setExpression("Constraints[15]", "Params.sketch19_radius")
sketch19.setExpression("Constraints[16]", "Params.sketch19_width")
pad2 = body.newObject("PartDesign::Pad", "Pad001")
pad2.Profile = sketch19
pad2.setExpression("Length", "Params.pad2_length")

doc.recompute()
